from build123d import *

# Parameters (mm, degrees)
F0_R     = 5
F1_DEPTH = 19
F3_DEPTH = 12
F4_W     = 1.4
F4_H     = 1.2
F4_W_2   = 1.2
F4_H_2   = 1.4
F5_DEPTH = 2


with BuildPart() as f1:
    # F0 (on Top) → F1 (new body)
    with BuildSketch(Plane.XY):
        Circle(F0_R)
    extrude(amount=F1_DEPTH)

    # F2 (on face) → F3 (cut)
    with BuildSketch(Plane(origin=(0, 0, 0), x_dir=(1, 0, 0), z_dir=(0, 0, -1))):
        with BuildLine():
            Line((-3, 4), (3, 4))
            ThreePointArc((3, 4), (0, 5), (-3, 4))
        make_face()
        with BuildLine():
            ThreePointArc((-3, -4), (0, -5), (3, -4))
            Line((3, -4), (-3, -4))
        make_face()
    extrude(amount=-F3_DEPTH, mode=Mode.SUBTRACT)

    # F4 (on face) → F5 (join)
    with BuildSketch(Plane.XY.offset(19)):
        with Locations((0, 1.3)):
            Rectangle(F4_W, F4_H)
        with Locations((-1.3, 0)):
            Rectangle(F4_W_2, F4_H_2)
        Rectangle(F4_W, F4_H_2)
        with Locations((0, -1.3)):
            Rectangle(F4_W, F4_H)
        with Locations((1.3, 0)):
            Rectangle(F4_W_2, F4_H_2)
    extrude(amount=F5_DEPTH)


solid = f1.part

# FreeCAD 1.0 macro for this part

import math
import FreeCAD as App
import Part
import Sketcher

V = App.Vector

doc = App.newDocument("Part")
body = doc.addObject("PartDesign::Body", "Body")

# Sketch on XY plane
sketch1 = body.newObject("Sketcher::SketchObject", "Sketch")
sketch1.AttachmentSupport = (doc.getObject("XY_Plane"), [""])
sketch1.MapMode = "FlatFace"
sketch1.addGeometry(Part.Circle(V(0, 0, 0), V(0, 0, 1), 5), False)
sketch1.addConstraint(Sketcher.Constraint("Coincident", 0, 3, -1, 1))
sketch1.addConstraint(Sketcher.Constraint("Diameter", 0, 10.0))
pad1 = body.newObject("PartDesign::Pad", "Pad")
pad1.Profile = sketch1
pad1.Length = 19

# Sketch on XY plane
sketch2 = body.newObject("Sketcher::SketchObject", "Sketch001")
sketch2.AttachmentSupport = (doc.getObject("XY_Plane"), [""])
sketch2.MapMode = "FlatFace"
sketch2.addGeometry(Part.LineSegment(V(-3, -4, 0), V(3, -4, 0)), False)
sketch2.addGeometry(Part.ArcOfCircle(Part.Circle(V(0, 0, 0), V(0, 0, 1), 5), math.radians(-127), math.radians(-53)), False)
sketch2.addGeometry(Part.ArcOfCircle(Part.Circle(V(0, 0, 0), V(0, 0, 1), 5), math.radians(53), math.radians(127)), False)
sketch2.addGeometry(Part.LineSegment(V(3, 4, 0), V(-3, 4, 0)), False)
sketch2.addConstraint(Sketcher.Constraint("Coincident", 0, 1, 1, 1))
sketch2.addConstraint(Sketcher.Constraint("Coincident", 1, 2, 0, 2))
sketch2.addConstraint(Sketcher.Constraint("Coincident", 2, 1, 3, 1))
sketch2.addConstraint(Sketcher.Constraint("Coincident", 3, 2, 2, 2))
sketch2.addConstraint(Sketcher.Constraint("Horizontal", 0))
sketch2.addConstraint(Sketcher.Constraint("Horizontal", 3))
sketch2.addConstraint(Sketcher.Constraint("Coincident", 1, 3, -1, 1))
sketch2.addConstraint(Sketcher.Constraint("Coincident", 2, 3, -1, 1))
sketch2.addConstraint(Sketcher.Constraint("Equal", 1, 2))
sketch2.addConstraint(Sketcher.Constraint("Vertical", 1, 2, 2, 1))
sketch2.addConstraint(Sketcher.Constraint("Radius", 1, 5.0))
sketch2.addConstraint(Sketcher.Constraint("DistanceX", 0, 1, 0, 2, 6.0))
pocket1 = body.newObject("PartDesign::Pocket", "Pocket")
pocket1.Profile = sketch2
pocket1.Length = 12
pocket1.Reversed = True

# Sketch on XY plane
sketch3 = body.newObject("Sketcher::SketchObject", "Sketch002")
sketch3.AttachmentSupport = (doc.getObject("XY_Plane"), [""])
sketch3.MapMode = "FlatFace"
sketch3.AttachmentOffset = App.Placement(V(0, 0, 19), App.Rotation())
sketch3.addGeometry(Part.LineSegment(V(-0.7, 1.9, 0), V(-0.7, 0.7, 0)), False)
sketch3.addGeometry(Part.LineSegment(V(-0.7, 0.7, 0), V(-1.9, 0.7, 0)), False)
sketch3.addGeometry(Part.LineSegment(V(-1.9, 0.7, 0), V(-1.9, -0.7, 0)), False)
sketch3.addGeometry(Part.LineSegment(V(-1.9, -0.7, 0), V(-0.7, -0.7, 0)), False)
sketch3.addGeometry(Part.LineSegment(V(-0.7, -0.7, 0), V(-0.7, -1.9, 0)), False)
sketch3.addGeometry(Part.LineSegment(V(-0.7, -1.9, 0), V(0.7, -1.9, 0)), False)
sketch3.addGeometry(Part.LineSegment(V(0.7, -1.9, 0), V(0.7, -0.7, 0)), False)
sketch3.addGeometry(Part.LineSegment(V(0.7, -0.7, 0), V(1.9, -0.7, 0)), False)
sketch3.addGeometry(Part.LineSegment(V(1.9, -0.7, 0), V(1.9, 0.7, 0)), False)
sketch3.addGeometry(Part.LineSegment(V(1.9, 0.7, 0), V(0.7, 0.7, 0)), False)
sketch3.addGeometry(Part.LineSegment(V(0.7, 0.7, 0), V(0.7, 1.9, 0)), False)
sketch3.addGeometry(Part.LineSegment(V(0.7, 1.9, 0), V(-0.7, 1.9, 0)), False)
sketch3.addConstraint(Sketcher.Constraint("Coincident", 0, 2, 1, 1))
sketch3.addConstraint(Sketcher.Constraint("Coincident", 1, 2, 2, 1))
sketch3.addConstraint(Sketcher.Constraint("Coincident", 2, 2, 3, 1))
sketch3.addConstraint(Sketcher.Constraint("Coincident", 3, 2, 4, 1))
sketch3.addConstraint(Sketcher.Constraint("Coincident", 4, 2, 5, 1))
sketch3.addConstraint(Sketcher.Constraint("Coincident", 5, 2, 6, 1))
sketch3.addConstraint(Sketcher.Constraint("Coincident", 6, 2, 7, 1))
sketch3.addConstraint(Sketcher.Constraint("Coincident", 7, 2, 8, 1))
sketch3.addConstraint(Sketcher.Constraint("Coincident", 8, 2, 9, 1))
sketch3.addConstraint(Sketcher.Constraint("Coincident", 9, 2, 10, 1))
sketch3.addConstraint(Sketcher.Constraint("Coincident", 10, 2, 11, 1))
sketch3.addConstraint(Sketcher.Constraint("Coincident", 11, 2, 0, 1))
sketch3.addConstraint(Sketcher.Constraint("Vertical", 0))
sketch3.addConstraint(Sketcher.Constraint("Horizontal", 1))
sketch3.addConstraint(Sketcher.Constraint("Vertical", 2))
sketch3.addConstraint(Sketcher.Constraint("Horizontal", 3))
sketch3.addConstraint(Sketcher.Constraint("Vertical", 4))
sketch3.addConstraint(Sketcher.Constraint("Horizontal", 5))
sketch3.addConstraint(Sketcher.Constraint("Vertical", 6))
sketch3.addConstraint(Sketcher.Constraint("Horizontal", 7))
sketch3.addConstraint(Sketcher.Constraint("Vertical", 8))
sketch3.addConstraint(Sketcher.Constraint("Horizontal", 9))
sketch3.addConstraint(Sketcher.Constraint("Vertical", 10))
sketch3.addConstraint(Sketcher.Constraint("Horizontal", 11))
sketch3.addConstraint(Sketcher.Constraint("Symmetric", 0, 2, 6, 2, -1, 1))
sketch3.addConstraint(Sketcher.Constraint("Symmetric", 2, 2, 8, 2, -1, 1))
sketch3.addConstraint(Sketcher.Constraint("Symmetric", 4, 2, 10, 2, -1, 1))
sketch3.addConstraint(Sketcher.Constraint("Symmetric", 3, 2, 6, 2, -2))
sketch3.addConstraint(Sketcher.Constraint("Equal", 9, 0))
sketch3.addConstraint(Sketcher.Constraint("Equal", 11, 2))
sketch3.addConstraint(Sketcher.Constraint("DistanceX", 1, 2, 1, 1, 1.2))
sketch3.addConstraint(Sketcher.Constraint("DistanceX", 5, 1, 5, 2, 1.4))
pad2 = body.newObject("PartDesign::Pad", "Pad001")
pad2.Profile = sketch3
pad2.Length = 2

doc.recompute()
